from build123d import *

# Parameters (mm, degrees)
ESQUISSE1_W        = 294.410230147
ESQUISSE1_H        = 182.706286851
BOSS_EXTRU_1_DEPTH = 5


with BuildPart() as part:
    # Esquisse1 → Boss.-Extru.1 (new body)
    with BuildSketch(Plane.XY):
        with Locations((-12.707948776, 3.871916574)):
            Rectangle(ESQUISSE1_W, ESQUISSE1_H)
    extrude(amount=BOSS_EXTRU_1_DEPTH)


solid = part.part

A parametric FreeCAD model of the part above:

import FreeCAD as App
import Part
import Sketcher
Q = App.Units.Quantity


def add_polygon(sketch, points):
    """Adds a closed chain of lines whose ends are joined by coincident constraints."""
    first, n = sketch.GeometryCount, len(points)
    for a, b in zip(points, points[1:] + points[:1]):
        sketch.addGeometry(Part.LineSegment(App.Vector(*a, 0), App.Vector(*b, 0)), False)
    for i in range(n):
        sketch.addConstraint(Sketcher.Constraint("Coincident", first + i, 2, first + (i + 1) % n, 1))

doc = App.newDocument("Part")
params = doc.addObject("Spreadsheet::Sheet", "Params")
for row, (alias, value) in enumerate([
    ("pad1_length", "5 mm"),
], start=1):
    params.set(f"A{row}", alias)
    params.set(f"B{row}", "=" + value)
    params.setAlias(f"B{row}", alias)

body = doc.addObject("PartDesign::Body", "Body")

# Sketch on XY plane
sketch1 = body.newObject("Sketcher::SketchObject", "Sketch")
sketch1.AttachmentSupport = (doc.getObject("XY_Plane"), [""])
sketch1.MapMode = "FlatFace"
add_polygon(sketch1, [(-160, 95), (-160, -87), (134, -87), (134, 95)])  # lines 0-3
sketch1.addConstraint(Sketcher.Constraint("Vertical", 0))
sketch1.addConstraint(Sketcher.Constraint("Horizontal", 1))
sketch1.addConstraint(Sketcher.Constraint("Vertical", 2))
sketch1.addConstraint(Sketcher.Constraint("Horizontal", 3))
sketch1.addConstraint(Sketcher.Constraint("DistanceX", 1, 1, 1, 2, Q("294.41023 mm")))
sketch1.addConstraint(Sketcher.Constraint("DistanceY", 0, 2, 0, 1, Q("182.706287 mm")))
sketch1.addConstraint(Sketcher.Constraint("DistanceY", -1, 1, 2, 2, Q("95.22506 mm")))
sketch1.addConstraint(Sketcher.Constraint("DistanceX", 0, 2, -1, 1, Q("159.913064 mm")))
pad1 = body.newObject("PartDesign::Pad", "Pad")
pad1.Profile = sketch1
pad1.setExpression("Length", "Params.pad1_length")

doc.recompute()
